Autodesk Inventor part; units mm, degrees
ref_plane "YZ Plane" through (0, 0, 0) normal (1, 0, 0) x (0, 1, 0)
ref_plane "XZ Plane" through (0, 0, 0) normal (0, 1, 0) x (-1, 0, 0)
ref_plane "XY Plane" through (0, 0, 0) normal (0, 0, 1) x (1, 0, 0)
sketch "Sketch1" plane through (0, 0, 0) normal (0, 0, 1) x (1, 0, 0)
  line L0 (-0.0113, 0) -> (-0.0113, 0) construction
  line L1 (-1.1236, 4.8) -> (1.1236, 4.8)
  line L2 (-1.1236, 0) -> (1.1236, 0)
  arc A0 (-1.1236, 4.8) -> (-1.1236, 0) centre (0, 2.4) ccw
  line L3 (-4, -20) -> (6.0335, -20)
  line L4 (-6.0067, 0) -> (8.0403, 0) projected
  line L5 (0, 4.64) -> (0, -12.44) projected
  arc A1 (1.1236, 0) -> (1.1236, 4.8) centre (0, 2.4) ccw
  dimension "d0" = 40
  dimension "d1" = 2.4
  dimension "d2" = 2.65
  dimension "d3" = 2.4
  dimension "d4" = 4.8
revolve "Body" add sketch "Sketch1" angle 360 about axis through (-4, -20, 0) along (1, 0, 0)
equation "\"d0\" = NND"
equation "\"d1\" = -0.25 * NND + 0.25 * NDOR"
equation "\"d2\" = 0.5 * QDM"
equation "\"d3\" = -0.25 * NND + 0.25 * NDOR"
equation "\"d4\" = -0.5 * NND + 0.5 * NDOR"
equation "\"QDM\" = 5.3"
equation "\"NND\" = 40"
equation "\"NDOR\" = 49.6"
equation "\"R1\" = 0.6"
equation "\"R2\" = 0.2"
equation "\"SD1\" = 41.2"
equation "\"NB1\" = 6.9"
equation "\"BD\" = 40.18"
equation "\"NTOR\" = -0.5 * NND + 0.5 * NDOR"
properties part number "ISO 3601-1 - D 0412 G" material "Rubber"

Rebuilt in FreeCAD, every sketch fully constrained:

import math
import FreeCAD as App
import Part
import Sketcher
from FreeCAD import Vector

doc = App.newDocument("Part")
params = doc.addObject("Spreadsheet::Sheet", "Params")
for row, (alias, value) in enumerate([
    ("sketch1_radius", "2.65 mm"),
    ("revolution_angle", "360 deg"),
], start=1):
    params.set(f"A{row}", alias)
    params.set(f"B{row}", "=" + value)
    params.setAlias(f"B{row}", alias)

body = doc.addObject("PartDesign::Body", "Body")

# Sketch on XY plane
sketch1 = body.newObject("Sketcher::SketchObject", "Sketch")
sketch1.AttachmentSupport = (doc.getObject("XY_Plane"), [""])
sketch1.MapMode = "FlatFace"
sketch1.addGeometry([
    Part.LineSegment(Vector(1.1, 4.8, 0), Vector(-1.1, 4.8, 0)),
    Part.ArcOfCircle(Part.Circle(Vector(0, 2.4, 0), Vector(0, 0, 1), 2.6), math.radians(115), math.radians(245)),
    Part.LineSegment(Vector(-1.1, 0, 0), Vector(1.1, 0, 0)),
    Part.ArcOfCircle(Part.Circle(Vector(0, 2.4, 0), Vector(0, 0, 1), 2.6), math.radians(-65), math.radians(65)),
], False)
sketch1.addGeometry(Part.LineSegment(Vector(-1.1, -20, 0), Vector(1.1, -20, 0)), True)  # axis
sketch1.addConstraint([
    Sketcher.Constraint("Coincident", 0, 2, 1, 1),
    Sketcher.Constraint("Coincident", 1, 2, 2, 1),
    Sketcher.Constraint("Coincident", 2, 2, 3, 1),
    Sketcher.Constraint("Coincident", 3, 2, 0, 1),
    Sketcher.Constraint("Horizontal", 0),
    Sketcher.Constraint("Horizontal", 2),
    Sketcher.Constraint("Horizontal", 4),
    Sketcher.Constraint("Coincident", 3, 3, 1, 3),
    Sketcher.Constraint("Equal", 1, 3),
    Sketcher.Constraint("Symmetric", 1, 2, 2, 2, -1, 1),
    Sketcher.Constraint("Vertical", 0, 2, 1, 2),
    Sketcher.Constraint("Vertical", 1, 2, 4, 1),
    Sketcher.Constraint("Vertical", 3, 2, 4, 2),
    Sketcher.Constraint("Radius", 1, 2.65),
    Sketcher.Constraint("DistanceY", -1, 1, 1, 3, 2.4),
    Sketcher.Constraint("DistanceY", 4, 1, -1, 1, 20.0),
])
sketch1.setExpression("Constraints[13]", "Params.sketch1_radius")
revolution = body.newObject("PartDesign::Revolution", "Revolution")
revolution.Profile = sketch1
revolution.ReferenceAxis = (sketch1, ["Axis0"])
revolution.setExpression("Angle", "Params.revolution_angle")

doc.recompute()
